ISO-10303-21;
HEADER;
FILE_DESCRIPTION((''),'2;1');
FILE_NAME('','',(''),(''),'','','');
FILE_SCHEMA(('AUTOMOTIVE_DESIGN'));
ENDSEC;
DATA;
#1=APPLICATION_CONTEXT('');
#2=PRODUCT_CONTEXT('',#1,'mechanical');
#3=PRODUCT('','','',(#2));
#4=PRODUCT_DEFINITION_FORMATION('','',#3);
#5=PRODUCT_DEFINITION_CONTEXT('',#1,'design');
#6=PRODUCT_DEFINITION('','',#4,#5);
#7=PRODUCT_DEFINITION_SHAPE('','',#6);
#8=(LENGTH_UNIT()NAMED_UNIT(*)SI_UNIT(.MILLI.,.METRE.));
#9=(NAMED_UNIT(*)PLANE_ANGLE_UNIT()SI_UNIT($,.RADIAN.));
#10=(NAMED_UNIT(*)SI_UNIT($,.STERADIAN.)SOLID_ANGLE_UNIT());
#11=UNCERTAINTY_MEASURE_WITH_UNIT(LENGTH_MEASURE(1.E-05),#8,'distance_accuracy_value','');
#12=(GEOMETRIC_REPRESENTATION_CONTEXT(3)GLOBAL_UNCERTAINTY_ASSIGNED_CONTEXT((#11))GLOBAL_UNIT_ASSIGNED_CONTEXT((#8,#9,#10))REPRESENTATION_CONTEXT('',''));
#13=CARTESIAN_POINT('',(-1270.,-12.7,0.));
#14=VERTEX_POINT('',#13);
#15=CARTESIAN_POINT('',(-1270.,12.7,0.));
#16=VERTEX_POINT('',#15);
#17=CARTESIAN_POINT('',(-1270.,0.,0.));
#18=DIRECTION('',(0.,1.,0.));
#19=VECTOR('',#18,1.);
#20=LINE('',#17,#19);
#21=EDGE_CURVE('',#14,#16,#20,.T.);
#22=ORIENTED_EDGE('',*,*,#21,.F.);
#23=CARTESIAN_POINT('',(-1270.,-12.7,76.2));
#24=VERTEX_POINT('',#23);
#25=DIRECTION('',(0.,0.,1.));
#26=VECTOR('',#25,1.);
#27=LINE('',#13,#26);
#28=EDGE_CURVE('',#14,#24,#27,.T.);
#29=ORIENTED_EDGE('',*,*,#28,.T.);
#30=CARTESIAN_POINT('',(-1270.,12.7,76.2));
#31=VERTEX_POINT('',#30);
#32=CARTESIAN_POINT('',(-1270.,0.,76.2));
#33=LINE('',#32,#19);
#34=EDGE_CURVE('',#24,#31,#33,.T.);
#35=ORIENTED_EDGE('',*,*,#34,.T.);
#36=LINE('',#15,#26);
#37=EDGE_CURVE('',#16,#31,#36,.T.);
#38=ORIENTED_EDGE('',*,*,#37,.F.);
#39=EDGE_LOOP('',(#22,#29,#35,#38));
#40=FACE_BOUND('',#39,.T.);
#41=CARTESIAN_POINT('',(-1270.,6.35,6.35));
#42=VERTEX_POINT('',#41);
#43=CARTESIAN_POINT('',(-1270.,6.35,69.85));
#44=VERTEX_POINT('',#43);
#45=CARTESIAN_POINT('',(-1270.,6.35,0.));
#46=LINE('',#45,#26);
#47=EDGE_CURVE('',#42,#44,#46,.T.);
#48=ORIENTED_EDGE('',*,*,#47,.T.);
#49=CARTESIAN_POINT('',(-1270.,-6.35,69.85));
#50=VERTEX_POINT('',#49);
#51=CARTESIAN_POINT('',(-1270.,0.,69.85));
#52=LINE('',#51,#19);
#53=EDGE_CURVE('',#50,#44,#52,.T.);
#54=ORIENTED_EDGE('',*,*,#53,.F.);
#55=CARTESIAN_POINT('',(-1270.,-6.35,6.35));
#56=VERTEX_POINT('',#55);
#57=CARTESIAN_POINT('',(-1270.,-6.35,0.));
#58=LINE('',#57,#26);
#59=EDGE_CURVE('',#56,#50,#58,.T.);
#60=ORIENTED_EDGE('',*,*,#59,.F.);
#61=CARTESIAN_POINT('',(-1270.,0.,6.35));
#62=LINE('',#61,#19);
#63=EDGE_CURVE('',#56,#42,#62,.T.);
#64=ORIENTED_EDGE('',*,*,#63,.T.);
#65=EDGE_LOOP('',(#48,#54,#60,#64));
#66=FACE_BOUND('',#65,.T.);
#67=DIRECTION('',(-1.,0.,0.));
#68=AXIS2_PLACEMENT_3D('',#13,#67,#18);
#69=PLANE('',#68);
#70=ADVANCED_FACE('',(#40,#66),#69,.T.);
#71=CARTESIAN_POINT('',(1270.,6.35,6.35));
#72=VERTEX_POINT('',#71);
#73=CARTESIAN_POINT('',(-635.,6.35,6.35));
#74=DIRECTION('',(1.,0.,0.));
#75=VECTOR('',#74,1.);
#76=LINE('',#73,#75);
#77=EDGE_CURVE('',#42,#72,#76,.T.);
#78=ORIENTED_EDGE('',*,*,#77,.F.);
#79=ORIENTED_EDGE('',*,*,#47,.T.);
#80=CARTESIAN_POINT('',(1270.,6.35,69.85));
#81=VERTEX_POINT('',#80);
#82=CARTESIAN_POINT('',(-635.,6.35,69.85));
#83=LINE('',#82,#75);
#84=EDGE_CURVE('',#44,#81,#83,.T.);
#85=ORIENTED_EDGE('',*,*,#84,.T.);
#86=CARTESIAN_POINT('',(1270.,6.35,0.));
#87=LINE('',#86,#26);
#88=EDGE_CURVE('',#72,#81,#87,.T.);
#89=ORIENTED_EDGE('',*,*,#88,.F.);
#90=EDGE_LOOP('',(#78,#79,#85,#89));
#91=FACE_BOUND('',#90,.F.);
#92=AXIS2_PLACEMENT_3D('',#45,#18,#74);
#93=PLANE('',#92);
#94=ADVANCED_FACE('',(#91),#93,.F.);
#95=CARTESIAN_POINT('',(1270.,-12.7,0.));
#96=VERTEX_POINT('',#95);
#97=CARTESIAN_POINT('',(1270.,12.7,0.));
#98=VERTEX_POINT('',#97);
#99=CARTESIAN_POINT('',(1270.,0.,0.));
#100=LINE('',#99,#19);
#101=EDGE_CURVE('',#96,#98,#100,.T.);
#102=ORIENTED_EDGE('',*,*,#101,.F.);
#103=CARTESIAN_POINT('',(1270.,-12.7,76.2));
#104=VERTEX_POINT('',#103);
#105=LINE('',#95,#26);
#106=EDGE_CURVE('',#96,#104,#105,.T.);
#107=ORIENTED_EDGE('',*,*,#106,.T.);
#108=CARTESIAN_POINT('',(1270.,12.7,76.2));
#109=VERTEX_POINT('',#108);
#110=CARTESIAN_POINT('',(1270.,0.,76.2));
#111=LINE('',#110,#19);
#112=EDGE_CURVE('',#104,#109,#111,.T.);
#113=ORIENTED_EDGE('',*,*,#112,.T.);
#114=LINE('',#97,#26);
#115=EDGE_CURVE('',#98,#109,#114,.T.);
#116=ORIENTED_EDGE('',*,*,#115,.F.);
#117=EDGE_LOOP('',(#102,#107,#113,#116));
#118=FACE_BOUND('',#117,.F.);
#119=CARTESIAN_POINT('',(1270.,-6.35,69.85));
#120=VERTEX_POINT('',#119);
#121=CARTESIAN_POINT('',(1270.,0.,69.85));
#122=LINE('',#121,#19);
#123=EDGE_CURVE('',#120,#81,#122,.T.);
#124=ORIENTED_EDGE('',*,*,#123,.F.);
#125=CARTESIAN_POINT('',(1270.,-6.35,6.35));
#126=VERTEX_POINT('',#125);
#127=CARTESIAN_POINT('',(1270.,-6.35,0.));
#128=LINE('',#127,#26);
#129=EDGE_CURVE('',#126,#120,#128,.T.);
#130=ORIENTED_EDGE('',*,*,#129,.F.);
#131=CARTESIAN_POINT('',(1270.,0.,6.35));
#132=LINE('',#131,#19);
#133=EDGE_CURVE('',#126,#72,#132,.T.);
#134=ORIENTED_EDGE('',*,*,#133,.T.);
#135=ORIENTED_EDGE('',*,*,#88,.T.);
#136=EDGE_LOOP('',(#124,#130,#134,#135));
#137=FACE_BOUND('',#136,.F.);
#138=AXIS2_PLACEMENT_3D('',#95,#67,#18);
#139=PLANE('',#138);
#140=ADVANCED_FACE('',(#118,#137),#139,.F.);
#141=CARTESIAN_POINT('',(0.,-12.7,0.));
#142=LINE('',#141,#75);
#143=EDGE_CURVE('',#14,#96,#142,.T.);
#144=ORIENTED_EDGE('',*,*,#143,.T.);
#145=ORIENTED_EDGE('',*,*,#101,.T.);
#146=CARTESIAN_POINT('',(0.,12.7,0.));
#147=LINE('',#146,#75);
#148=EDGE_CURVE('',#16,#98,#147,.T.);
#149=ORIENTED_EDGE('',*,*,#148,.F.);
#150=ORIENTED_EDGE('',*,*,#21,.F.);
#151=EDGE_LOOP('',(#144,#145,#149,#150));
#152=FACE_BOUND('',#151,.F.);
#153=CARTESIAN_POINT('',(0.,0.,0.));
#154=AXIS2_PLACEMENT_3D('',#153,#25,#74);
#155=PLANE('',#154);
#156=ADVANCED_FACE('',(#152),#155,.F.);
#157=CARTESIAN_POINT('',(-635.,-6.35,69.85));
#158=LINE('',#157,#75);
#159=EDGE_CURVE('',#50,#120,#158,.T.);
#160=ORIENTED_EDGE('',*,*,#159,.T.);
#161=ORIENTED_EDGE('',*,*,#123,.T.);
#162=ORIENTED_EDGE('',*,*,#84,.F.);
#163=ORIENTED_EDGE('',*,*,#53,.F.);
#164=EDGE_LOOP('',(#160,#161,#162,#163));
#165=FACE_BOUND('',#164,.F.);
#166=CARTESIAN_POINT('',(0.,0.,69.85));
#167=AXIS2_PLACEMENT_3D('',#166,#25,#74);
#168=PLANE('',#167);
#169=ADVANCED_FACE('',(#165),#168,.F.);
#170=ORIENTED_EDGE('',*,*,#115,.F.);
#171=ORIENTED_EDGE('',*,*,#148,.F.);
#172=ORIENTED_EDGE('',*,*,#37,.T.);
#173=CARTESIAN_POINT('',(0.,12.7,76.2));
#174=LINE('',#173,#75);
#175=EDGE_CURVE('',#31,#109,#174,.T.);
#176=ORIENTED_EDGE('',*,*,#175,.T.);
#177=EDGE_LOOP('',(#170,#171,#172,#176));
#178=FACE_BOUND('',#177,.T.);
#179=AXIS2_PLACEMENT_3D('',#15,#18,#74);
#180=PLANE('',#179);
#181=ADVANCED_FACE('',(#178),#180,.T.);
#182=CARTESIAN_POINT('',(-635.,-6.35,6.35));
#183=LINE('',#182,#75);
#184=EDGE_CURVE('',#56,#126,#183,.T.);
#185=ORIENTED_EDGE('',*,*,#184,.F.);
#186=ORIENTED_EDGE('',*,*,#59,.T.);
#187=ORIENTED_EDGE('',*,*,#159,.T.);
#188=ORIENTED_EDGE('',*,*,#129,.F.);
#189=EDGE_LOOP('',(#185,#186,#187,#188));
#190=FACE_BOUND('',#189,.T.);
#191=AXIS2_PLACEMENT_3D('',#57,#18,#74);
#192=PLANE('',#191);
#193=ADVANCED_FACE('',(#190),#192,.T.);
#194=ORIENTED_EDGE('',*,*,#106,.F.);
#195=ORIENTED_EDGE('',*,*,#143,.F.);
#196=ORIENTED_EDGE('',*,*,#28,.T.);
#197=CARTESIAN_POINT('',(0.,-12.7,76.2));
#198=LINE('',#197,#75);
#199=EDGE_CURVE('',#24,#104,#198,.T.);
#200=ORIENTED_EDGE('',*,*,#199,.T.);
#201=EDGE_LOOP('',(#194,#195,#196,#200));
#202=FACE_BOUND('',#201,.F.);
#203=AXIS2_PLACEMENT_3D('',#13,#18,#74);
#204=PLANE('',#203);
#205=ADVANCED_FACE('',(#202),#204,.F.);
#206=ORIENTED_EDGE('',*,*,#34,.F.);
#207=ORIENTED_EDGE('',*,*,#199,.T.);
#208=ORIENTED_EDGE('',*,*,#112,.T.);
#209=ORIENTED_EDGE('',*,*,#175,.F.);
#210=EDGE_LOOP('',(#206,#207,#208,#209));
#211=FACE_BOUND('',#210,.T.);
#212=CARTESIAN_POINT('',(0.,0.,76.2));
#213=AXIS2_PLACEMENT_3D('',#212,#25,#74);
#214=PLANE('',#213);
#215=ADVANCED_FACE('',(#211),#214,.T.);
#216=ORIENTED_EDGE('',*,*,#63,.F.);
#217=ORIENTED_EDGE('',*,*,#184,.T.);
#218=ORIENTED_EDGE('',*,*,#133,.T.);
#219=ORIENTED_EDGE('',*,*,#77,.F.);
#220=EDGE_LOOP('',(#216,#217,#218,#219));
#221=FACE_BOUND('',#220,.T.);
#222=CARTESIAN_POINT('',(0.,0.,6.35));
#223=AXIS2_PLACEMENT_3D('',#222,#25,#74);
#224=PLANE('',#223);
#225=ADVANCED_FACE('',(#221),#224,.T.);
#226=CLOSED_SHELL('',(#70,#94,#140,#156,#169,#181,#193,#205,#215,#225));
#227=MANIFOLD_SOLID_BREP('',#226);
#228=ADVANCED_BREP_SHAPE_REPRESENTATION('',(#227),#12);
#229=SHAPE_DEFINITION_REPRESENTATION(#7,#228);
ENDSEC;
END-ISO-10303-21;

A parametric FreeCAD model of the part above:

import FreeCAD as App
import Part
import Sketcher
Q = App.Units.Quantity


def faces_at(feature, points):
    """Names of the faces that lie closest to the given points."""
    faces = feature.Shape.Faces
    near = lambda p: min(range(len(faces)), key=lambda i: faces[i].distToShape(Part.Vertex(*p))[0])
    return sorted({f"Face{near(p) + 1}" for p in points})


def add_polygon(sketch, points):
    """Adds a closed chain of lines whose ends are joined by coincident constraints."""
    first, n = sketch.GeometryCount, len(points)
    for a, b in zip(points, points[1:] + points[:1]):
        sketch.addGeometry(Part.LineSegment(App.Vector(*a, 0), App.Vector(*b, 0)), False)
    for i in range(n):
        sketch.addConstraint(Sketcher.Constraint("Coincident", first + i, 2, first + (i + 1) % n, 1))

doc = App.newDocument("Part")
body = doc.addObject("PartDesign::Body", "Body")

# Sketch on XY plane
sketch1 = doc.addObject("Sketcher::SketchObject", "Sketch")
body.addObject(sketch1)
sketch1.AttachmentSupport = (doc.XY_Plane, [""])
sketch1.MapMode = "FlatFace"
add_polygon(sketch1, [(-1270, 12.7), (-1270, -12.7), (1270, -12.7), (1270, 12.7)])  # lines 0-3
sketch1.addConstraint([
    Sketcher.Constraint("Vertical", 0),
    Sketcher.Constraint("Horizontal", 1),
    Sketcher.Constraint("Vertical", 2),
    Sketcher.Constraint("Horizontal", 3),
    Sketcher.Constraint("Symmetric", 0, 2, 2, 2, -1, 1),
    Sketcher.Constraint("DistanceX", 1, 1, 1, 2, Q("100 in")),
    Sketcher.Constraint("DistanceY", 0, 2, 0, 1, Q("1 in")),
])
pad1 = doc.addObject("PartDesign::Pad", "Pad")
body.addObject(pad1)
pad1.Profile = sketch1
pad1.Length = Q("3 in")
doc.recompute()

thickness = doc.addObject("PartDesign::Thickness", "Thickness")
body.addObject(thickness)
thickness.Base = (pad1, faces_at(pad1, [(1270, 0, 38.1), (-1270, 0, 38.1)]))
thickness.Value = Q("0.25 in")
thickness.Reversed = True
thickness.Join = "Arc"

doc.recompute()
